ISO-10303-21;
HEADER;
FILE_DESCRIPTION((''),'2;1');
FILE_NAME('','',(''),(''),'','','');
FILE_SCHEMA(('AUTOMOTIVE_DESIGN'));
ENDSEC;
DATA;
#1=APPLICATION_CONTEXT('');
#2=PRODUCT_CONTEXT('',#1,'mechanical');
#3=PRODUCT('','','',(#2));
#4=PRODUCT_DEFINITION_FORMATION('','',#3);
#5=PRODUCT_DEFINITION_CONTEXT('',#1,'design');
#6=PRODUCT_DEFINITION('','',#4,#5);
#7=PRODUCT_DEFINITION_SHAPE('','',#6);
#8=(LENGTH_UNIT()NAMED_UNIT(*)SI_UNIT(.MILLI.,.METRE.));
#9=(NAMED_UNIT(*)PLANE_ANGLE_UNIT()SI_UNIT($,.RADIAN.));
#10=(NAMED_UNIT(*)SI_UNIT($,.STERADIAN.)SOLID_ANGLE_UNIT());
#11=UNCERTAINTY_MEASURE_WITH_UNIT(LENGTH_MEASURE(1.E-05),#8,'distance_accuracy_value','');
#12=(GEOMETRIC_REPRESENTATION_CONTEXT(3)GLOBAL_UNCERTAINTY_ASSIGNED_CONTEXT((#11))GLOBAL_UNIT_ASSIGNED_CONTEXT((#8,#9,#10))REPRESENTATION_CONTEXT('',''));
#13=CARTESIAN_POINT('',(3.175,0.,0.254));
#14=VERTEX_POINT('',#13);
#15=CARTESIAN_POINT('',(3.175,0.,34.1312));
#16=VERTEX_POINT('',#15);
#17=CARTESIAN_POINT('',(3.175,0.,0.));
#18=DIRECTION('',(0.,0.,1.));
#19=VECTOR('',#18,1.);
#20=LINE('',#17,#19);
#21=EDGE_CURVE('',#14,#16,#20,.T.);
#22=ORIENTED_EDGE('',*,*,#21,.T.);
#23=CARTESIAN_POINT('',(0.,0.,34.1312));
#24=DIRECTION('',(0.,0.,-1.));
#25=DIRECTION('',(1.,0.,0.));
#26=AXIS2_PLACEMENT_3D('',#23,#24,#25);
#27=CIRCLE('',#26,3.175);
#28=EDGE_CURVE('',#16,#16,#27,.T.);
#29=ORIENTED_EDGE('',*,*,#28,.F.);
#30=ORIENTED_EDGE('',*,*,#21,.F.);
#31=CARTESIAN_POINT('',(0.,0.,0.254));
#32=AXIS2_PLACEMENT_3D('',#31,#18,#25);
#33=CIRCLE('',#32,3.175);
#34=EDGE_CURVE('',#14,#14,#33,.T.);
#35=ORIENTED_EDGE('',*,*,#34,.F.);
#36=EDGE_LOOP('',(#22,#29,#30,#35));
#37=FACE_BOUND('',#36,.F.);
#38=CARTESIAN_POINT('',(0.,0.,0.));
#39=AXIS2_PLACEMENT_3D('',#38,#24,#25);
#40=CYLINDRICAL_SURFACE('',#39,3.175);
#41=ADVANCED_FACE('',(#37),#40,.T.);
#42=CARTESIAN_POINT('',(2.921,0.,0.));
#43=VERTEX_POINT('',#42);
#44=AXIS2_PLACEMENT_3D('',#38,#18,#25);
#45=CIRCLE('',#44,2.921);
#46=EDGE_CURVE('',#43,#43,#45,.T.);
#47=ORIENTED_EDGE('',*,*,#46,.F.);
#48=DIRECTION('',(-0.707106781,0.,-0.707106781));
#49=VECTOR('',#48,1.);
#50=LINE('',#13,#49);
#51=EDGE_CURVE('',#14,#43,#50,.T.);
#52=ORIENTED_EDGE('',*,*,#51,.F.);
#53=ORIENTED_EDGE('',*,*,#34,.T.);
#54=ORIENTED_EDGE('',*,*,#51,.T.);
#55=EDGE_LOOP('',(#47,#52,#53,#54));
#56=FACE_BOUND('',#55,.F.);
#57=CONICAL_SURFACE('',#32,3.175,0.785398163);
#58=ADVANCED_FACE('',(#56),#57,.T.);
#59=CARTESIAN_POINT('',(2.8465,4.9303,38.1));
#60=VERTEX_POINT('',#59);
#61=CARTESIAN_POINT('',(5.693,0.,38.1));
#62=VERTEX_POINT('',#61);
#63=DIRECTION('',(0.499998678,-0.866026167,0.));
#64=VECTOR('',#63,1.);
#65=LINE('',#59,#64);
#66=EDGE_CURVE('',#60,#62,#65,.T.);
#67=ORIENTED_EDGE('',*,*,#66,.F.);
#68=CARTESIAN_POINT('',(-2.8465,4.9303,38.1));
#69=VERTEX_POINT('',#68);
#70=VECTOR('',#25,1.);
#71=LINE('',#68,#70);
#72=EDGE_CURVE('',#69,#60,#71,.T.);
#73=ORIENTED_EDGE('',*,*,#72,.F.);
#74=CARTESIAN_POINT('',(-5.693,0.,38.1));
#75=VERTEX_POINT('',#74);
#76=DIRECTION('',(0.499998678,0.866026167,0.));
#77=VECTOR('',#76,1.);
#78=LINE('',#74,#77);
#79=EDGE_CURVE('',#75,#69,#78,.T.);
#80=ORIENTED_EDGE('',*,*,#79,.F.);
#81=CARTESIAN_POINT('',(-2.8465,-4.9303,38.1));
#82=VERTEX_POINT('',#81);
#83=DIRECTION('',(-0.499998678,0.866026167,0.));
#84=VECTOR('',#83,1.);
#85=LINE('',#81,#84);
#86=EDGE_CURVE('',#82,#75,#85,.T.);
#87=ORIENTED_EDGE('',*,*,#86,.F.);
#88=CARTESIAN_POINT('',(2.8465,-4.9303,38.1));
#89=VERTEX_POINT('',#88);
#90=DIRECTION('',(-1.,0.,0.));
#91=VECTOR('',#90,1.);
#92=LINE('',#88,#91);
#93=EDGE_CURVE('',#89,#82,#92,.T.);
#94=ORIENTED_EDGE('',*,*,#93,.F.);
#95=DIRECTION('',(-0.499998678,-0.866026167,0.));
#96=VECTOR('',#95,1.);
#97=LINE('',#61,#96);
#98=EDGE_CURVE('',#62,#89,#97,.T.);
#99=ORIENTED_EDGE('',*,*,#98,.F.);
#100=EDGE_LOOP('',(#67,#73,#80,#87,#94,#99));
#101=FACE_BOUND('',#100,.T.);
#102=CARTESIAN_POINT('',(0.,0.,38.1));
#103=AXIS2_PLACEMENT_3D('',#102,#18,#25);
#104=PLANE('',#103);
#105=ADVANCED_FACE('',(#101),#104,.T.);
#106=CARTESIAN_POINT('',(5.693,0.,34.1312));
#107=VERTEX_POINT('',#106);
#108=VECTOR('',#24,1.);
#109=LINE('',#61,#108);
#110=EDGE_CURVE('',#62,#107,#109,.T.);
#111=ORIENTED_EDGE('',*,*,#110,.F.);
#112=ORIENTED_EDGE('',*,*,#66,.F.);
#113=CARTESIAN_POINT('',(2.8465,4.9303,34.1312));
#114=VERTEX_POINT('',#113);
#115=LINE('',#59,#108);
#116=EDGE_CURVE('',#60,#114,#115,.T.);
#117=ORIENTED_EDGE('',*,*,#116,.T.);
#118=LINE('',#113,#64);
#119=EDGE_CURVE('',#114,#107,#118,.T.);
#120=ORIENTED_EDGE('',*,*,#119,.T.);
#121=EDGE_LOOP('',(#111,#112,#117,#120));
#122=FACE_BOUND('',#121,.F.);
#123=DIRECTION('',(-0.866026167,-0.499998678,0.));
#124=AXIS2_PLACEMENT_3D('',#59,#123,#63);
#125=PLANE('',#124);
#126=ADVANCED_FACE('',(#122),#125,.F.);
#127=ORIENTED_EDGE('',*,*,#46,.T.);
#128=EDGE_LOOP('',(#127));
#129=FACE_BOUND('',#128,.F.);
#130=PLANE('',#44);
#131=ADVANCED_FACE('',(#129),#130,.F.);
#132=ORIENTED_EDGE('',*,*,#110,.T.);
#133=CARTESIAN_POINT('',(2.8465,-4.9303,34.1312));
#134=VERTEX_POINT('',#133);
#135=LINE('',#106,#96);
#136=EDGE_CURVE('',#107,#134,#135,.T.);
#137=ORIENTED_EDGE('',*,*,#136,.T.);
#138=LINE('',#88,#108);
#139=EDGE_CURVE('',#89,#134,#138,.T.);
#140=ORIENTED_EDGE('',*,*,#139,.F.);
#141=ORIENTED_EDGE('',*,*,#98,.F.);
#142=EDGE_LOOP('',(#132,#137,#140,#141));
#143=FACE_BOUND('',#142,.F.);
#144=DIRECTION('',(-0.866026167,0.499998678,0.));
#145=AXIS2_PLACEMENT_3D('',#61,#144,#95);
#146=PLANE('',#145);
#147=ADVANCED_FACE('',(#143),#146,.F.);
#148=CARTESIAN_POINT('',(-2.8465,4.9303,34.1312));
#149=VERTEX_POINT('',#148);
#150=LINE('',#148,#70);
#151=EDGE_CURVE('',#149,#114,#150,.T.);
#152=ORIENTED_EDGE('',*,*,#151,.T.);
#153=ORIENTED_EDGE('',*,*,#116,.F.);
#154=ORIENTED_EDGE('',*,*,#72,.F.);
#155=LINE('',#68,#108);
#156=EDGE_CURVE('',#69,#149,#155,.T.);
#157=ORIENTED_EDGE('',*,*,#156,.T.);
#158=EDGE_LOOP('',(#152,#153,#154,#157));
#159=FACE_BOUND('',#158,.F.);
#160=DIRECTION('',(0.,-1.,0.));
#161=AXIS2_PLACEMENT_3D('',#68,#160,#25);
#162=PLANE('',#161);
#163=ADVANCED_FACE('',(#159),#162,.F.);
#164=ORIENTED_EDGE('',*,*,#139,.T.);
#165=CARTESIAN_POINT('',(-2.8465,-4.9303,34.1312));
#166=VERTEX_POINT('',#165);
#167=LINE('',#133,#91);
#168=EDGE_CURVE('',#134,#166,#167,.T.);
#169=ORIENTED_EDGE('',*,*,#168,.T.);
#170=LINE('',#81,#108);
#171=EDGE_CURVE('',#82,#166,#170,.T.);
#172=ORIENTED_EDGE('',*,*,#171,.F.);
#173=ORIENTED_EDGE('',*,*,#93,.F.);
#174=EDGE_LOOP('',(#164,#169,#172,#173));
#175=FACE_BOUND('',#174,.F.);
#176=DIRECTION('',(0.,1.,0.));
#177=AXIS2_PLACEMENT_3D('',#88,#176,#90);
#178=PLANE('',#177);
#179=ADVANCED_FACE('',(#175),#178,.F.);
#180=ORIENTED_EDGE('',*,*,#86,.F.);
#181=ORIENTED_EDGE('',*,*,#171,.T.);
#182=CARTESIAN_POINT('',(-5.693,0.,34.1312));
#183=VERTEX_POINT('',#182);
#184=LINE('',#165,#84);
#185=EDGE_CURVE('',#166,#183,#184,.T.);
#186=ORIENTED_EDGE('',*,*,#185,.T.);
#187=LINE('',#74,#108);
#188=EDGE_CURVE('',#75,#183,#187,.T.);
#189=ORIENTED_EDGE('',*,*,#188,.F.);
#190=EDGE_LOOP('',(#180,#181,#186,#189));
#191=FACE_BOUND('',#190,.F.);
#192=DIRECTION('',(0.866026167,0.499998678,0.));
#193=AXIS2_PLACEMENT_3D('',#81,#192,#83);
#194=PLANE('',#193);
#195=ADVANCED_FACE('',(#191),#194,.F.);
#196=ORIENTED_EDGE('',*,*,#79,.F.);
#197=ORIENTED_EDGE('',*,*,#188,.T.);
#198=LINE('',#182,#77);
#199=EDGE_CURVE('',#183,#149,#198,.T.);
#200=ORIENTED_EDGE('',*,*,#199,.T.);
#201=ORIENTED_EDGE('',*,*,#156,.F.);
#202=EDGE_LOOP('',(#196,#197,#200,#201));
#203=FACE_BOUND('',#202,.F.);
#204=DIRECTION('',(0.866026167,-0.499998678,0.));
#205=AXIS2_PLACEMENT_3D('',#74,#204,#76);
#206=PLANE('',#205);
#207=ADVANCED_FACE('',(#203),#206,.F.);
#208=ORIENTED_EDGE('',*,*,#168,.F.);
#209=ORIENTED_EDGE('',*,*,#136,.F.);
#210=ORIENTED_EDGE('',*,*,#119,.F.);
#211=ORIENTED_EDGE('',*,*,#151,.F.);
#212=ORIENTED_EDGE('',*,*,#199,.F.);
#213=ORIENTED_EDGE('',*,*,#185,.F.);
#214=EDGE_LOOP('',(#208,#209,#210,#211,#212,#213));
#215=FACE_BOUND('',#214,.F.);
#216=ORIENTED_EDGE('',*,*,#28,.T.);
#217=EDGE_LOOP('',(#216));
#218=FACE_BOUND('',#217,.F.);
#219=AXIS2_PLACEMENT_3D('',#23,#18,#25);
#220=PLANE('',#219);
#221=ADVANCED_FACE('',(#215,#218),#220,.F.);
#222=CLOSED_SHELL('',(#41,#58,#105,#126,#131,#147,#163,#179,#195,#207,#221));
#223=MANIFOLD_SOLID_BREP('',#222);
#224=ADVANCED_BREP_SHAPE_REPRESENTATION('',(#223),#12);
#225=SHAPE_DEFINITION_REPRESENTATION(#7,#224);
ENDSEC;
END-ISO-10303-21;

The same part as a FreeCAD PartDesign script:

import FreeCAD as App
import Part
import Sketcher
from FreeCAD import Vector
Q = App.Units.Quantity


def edges_at(feature, points):
    """Names of the edges that pass closest to the given points."""
    edges = feature.Shape.Edges
    near = lambda p: min(range(len(edges)), key=lambda i: edges[i].distToShape(Part.Vertex(*p))[0])
    return sorted({f"Edge{near(p) + 1}" for p in points})

doc = App.newDocument("Part")
params = doc.addObject("Spreadsheet::Sheet", "Params")
for row, (alias, value) in enumerate([
    ("sketch1_diameter", "0.25 in"),
    ("pad1_length", "1.5 in"),
    ("pad2_length", "0.156252 in"),
    ("chamfer_size", "0.01 in"),
], start=1):
    params.set(f"A{row}", alias)
    params.set(f"B{row}", "=" + value)
    params.setAlias(f"B{row}", alias)

body = doc.addObject("PartDesign::Body", "Body")

# Sketch on XY plane
sketch1 = doc.addObject("Sketcher::SketchObject", "Sketch")
body.addObject(sketch1)
sketch1.AttachmentSupport = (doc.XY_Plane, [""])
sketch1.MapMode = "FlatFace"
sketch1.addGeometry(Part.Circle(Vector(0, 0, 0), Vector(0, 0, 1), 3.2), False)
sketch1.addConstraint([
    Sketcher.Constraint("Coincident", 0, 3, -1, 1),
    Sketcher.Constraint("Diameter", 0, Q("0.25 in")),
])
sketch1.setExpression("Constraints[1]", "Params.sketch1_diameter")
pad1 = doc.addObject("PartDesign::Pad", "Pad")
body.addObject(pad1)
pad1.Profile = sketch1
pad1.setExpression("Length", "Params.pad1_length")

# Sketch on XY plane
sketch2 = doc.addObject("Sketcher::SketchObject", "Sketch001")
body.addObject(sketch2)
sketch2.AttachmentSupport = (doc.XY_Plane, [""])
sketch2.MapMode = "FlatFace"
sketch2.AttachmentOffset = App.Placement(Vector(0, 0, 1.5 * 25.4), App.Rotation())
sketch2.addGeometry([
    Part.LineSegment(Vector(3, -5, 0), Vector(6, 0, 0)),  # 0
    Part.LineSegment(Vector(6, 0, 0), Vector(3, 5, 0)),  # 1
    Part.LineSegment(Vector(3, 5, 0), Vector(-3, 5, 0)),  # 2
    Part.LineSegment(Vector(-3, 5, 0), Vector(-6, 0, 0)),  # 3
    Part.LineSegment(Vector(-6, 0, 0), Vector(-3, -5, 0)),  # 4
    Part.LineSegment(Vector(-3, -5, 0), Vector(3, -5, 0)),  # 5
], False)
sketch2.addConstraint([
    Sketcher.Constraint("Coincident", 0, 2, 1, 1),
    Sketcher.Constraint("Coincident", 1, 2, 2, 1),
    Sketcher.Constraint("Coincident", 2, 2, 3, 1),
    Sketcher.Constraint("Coincident", 3, 2, 4, 1),
    Sketcher.Constraint("Coincident", 4, 2, 5, 1),
    Sketcher.Constraint("Coincident", 5, 2, 0, 1),
    Sketcher.Constraint("Horizontal", 2),
    Sketcher.Constraint("Horizontal", 5),
    Sketcher.Constraint("Symmetric", 0, 2, 3, 2, -1, 1),
    Sketcher.Constraint("Symmetric", 1, 2, 4, 2, -1, 1),
    Sketcher.Constraint("PointOnObject", 0, 2, -1),
    Sketcher.Constraint("Parallel", 0, 3),
    Sketcher.Constraint("Vertical", 2, 2, 4, 2),
    Sketcher.Constraint("Angle", 0, Q("60 deg")),
    Sketcher.Constraint("DistanceX", 2, 2, 2, 1, 5.693),
    Sketcher.Constraint("DistanceY", -1, 1, 1, 2, Q("0.1941 in")),
])
pad2 = doc.addObject("PartDesign::Pad", "Pad001")
body.addObject(pad2)
pad2.Profile = sketch2
pad2.setExpression("Length", "Params.pad2_length")
pad2.Reversed = True
doc.recompute()

chamfer = doc.addObject("PartDesign::Chamfer", "Chamfer")
body.addObject(chamfer)
chamfer.Base = (pad2, edges_at(pad2, [(-3.175, 0, 0)]))
chamfer.setExpression("Size", "Params.chamfer_size")

doc.recompute()
